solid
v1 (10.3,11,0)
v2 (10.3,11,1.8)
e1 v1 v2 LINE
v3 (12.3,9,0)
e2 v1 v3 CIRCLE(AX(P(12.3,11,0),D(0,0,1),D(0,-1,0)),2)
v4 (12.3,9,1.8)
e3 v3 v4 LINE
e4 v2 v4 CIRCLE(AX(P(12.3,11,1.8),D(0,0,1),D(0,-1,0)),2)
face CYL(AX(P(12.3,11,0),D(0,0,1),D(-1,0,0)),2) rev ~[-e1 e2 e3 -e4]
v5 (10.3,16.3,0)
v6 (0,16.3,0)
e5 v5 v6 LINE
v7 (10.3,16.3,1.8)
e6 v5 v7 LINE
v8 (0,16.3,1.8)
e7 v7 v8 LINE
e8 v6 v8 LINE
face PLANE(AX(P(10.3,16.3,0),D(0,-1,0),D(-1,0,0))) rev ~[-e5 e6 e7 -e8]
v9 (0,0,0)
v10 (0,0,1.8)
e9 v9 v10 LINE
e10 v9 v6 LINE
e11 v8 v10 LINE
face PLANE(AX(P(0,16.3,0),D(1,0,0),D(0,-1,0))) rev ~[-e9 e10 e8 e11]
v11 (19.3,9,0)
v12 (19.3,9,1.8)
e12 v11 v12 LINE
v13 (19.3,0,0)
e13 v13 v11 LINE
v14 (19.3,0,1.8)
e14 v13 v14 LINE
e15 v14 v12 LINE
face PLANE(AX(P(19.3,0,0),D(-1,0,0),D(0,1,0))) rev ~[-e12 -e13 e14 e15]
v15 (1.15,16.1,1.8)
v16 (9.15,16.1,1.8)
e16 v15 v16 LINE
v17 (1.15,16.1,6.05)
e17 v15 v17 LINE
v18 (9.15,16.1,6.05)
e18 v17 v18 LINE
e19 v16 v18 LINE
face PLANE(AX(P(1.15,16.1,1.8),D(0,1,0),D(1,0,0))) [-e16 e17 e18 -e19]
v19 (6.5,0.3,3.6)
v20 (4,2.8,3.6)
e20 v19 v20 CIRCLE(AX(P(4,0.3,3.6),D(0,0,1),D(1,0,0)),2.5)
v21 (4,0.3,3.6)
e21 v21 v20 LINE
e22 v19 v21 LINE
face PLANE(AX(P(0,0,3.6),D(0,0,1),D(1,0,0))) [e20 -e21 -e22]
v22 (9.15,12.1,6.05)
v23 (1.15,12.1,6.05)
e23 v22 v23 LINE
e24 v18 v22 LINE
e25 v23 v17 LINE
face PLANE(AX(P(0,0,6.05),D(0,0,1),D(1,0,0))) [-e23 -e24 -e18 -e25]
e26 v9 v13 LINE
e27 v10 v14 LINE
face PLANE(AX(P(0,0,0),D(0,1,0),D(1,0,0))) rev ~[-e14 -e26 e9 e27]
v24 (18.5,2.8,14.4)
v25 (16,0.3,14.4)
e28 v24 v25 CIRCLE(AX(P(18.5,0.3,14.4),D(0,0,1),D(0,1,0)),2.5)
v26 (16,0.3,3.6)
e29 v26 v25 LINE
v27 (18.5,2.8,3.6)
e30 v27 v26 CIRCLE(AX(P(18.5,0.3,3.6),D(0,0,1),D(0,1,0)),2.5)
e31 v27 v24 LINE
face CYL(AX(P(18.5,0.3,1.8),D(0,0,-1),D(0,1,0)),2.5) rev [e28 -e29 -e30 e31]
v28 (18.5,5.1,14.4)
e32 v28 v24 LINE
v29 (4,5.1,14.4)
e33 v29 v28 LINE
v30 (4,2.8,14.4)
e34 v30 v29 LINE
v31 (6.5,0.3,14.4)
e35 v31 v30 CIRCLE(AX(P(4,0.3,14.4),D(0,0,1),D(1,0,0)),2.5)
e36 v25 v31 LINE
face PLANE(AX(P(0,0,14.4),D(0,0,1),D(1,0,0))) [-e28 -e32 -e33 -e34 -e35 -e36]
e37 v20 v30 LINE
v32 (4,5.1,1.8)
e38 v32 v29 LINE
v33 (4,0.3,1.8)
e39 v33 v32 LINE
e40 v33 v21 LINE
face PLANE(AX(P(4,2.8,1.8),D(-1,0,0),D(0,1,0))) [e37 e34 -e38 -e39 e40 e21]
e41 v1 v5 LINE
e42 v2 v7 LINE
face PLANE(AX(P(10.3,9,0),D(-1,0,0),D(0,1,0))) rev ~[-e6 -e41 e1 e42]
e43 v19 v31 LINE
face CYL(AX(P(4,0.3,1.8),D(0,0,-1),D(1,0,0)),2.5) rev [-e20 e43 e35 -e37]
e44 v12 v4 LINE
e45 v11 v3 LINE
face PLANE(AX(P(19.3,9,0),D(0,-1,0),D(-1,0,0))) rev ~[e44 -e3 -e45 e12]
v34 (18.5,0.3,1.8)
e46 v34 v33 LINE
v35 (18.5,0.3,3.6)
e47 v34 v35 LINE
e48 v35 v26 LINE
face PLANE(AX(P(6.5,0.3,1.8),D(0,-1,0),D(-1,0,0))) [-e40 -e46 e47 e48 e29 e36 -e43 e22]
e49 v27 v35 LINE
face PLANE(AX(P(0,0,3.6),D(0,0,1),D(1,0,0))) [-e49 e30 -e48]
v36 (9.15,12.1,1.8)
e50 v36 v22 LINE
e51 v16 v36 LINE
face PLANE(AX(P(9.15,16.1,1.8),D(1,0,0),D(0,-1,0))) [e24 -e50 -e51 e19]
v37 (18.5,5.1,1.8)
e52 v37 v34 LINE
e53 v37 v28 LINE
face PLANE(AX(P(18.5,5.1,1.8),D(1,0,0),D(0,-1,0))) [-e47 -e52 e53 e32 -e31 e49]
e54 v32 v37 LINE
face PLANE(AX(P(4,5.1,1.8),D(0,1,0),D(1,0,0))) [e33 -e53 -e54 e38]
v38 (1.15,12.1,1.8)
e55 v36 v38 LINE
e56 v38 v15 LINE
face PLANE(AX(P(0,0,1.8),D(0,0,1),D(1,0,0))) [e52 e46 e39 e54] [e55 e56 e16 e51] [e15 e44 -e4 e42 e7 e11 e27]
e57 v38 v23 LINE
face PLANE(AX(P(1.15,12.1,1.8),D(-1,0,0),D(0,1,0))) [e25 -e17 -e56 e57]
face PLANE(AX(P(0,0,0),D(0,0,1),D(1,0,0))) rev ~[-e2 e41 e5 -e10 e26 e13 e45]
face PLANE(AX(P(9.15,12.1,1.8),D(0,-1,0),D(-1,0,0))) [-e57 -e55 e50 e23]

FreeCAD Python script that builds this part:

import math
import FreeCAD as App
import Part
import Sketcher

V = App.Vector


def edges_at(feature, points):
    """Names of the edges that pass closest to the given points."""
    edges = feature.Shape.Edges
    near = lambda p: min(range(len(edges)), key=lambda i: edges[i].distToShape(Part.Vertex(*p))[0])
    return sorted({f"Edge{near(p) + 1}" for p in points})

doc = App.newDocument("Part")
body = doc.addObject("PartDesign::Body", "Body")

sketch1 = body.newObject("Sketcher::SketchObject", "Sketch")
sketch1.AttachmentSupport = (doc.getObject("XY_Plane"), [""])
sketch1.MapMode = "FlatFace"
sketch1.addGeometry([
    Part.LineSegment(V(0, 16, 0), V(0, 0, 0)),
    Part.LineSegment(V(0, 0, 0), V(19, 0, 0)),
    Part.LineSegment(V(19, 0, 0), V(19, 9, 0)),
    Part.LineSegment(V(19, 9, 0), V(10, 9, 0)),
    Part.LineSegment(V(10, 9, 0), V(10, 16, 0)),
    Part.LineSegment(V(10, 16, 0), V(0, 16, 0)),
], False)
sketch1.addConstraint([
    Sketcher.Constraint("Coincident", 0, 2, 1, 1),
    Sketcher.Constraint("Coincident", 1, 2, 2, 1),
    Sketcher.Constraint("Coincident", 2, 2, 3, 1),
    Sketcher.Constraint("Coincident", 3, 2, 4, 1),
    Sketcher.Constraint("Coincident", 4, 2, 5, 1),
    Sketcher.Constraint("Coincident", 5, 2, 0, 1),
    Sketcher.Constraint("Vertical", 0),
    Sketcher.Constraint("Horizontal", 1),
    Sketcher.Constraint("Vertical", 2),
    Sketcher.Constraint("Horizontal", 3),
    Sketcher.Constraint("Vertical", 4),
    Sketcher.Constraint("Horizontal", 5),
    Sketcher.Constraint("Coincident", 0, 2, -1, 1),
    Sketcher.Constraint("Equal", 3, 2),
    Sketcher.Constraint("DistanceX", 3, 2, 3, 1, 9.0),
    Sketcher.Constraint("DistanceX", 1, 1, 1, 2, 19.3),
    Sketcher.Constraint("DistanceY", 0, 2, 0, 1, 16.3),
])
pad1 = body.newObject("PartDesign::Pad", "Pad")
pad1.Profile = sketch1
pad1.Length = 1.8
doc.recompute()

fillet = body.newObject("PartDesign::Fillet", "Fillet")
fillet.Base = (pad1, edges_at(pad1, [(10.3, 9, 0.9)]))
fillet.Radius = 2

sketch2 = body.newObject("Sketcher::SketchObject", "Sketch001")
sketch2.AttachmentSupport = (doc.getObject("XY_Plane"), [""])
sketch2.MapMode = "FlatFace"
sketch2.AttachmentOffset = App.Placement(V(0, 0, 1.8), App.Rotation())
sketch2.addGeometry([
    Part.LineSegment(V(6.5, 0.3, 0), V(16, 0.3, 0)),
    Part.ArcOfCircle(Part.Circle(V(18.5, 0.3, 0), V(0, 0, 1), 2.5), math.radians(90), math.radians(180)),
    Part.LineSegment(V(18.5, 2.8, 0), V(18.5, 5.1, 0)),
    Part.LineSegment(V(18.5, 5.1, 0), V(4, 5.1, 0)),
    Part.LineSegment(V(4, 5.1, 0), V(4, 2.8, 0)),
    Part.ArcOfCircle(Part.Circle(V(4, 0.3, 0), V(0, 0, 1), 2.5), math.radians(0), math.radians(90)),
], False)
sketch2.addConstraint([
    Sketcher.Constraint("Coincident", 0, 2, 1, 2),
    Sketcher.Constraint("Coincident", 1, 1, 2, 1),
    Sketcher.Constraint("Coincident", 2, 2, 3, 1),
    Sketcher.Constraint("Coincident", 3, 2, 4, 1),
    Sketcher.Constraint("Coincident", 4, 2, 5, 2),
    Sketcher.Constraint("Coincident", 5, 1, 0, 1),
    Sketcher.Constraint("Horizontal", 0),
    Sketcher.Constraint("Vertical", 2),
    Sketcher.Constraint("Horizontal", 3),
    Sketcher.Constraint("Vertical", 4),
    Sketcher.Constraint("Equal", 1, 5),
    Sketcher.Constraint("Horizontal", 1, 3, 5, 3),
    Sketcher.Constraint("Horizontal", 5, 3, 0, 2),
    Sketcher.Constraint("Vertical", 5, 3, 3, 2),
    Sketcher.Constraint("Radius", 1, 2.5),
    Sketcher.Constraint("DistanceX", 3, 2, 3, 1, 14.5),
    Sketcher.Constraint("DistanceY", 2, 1, 2, 2, 2.3),
    Sketcher.Constraint("DistanceY", -1, 1, 1, 3, 0.3),
    Sketcher.Constraint("DistanceX", 5, 3, 1, 3, 14.5),
    Sketcher.Constraint("DistanceX", -1, 1, 5, 3, 4.0),
])
pad2 = body.newObject("PartDesign::Pad", "Pad001")
pad2.Profile = sketch2
pad2.Length = 12.6

sketch3 = body.newObject("Sketcher::SketchObject", "Sketch002")
sketch3.AttachmentSupport = (doc.getObject("XY_Plane"), [""])
sketch3.MapMode = "FlatFace"
sketch3.AttachmentOffset = App.Placement(V(0, 0, 1.8), App.Rotation())
sketch3.addGeometry([
    Part.LineSegment(V(16, 0.3, 0), V(18.5, 0.3, 0)),
    Part.LineSegment(V(18.5, 0.3, 0), V(18.5, 2.8, 0)),
    Part.ArcOfCircle(Part.Circle(V(18.5, 0.3, 0), V(0, 0, 1), 2.5), math.radians(90), math.radians(180)),
    Part.LineSegment(V(4, 0.3, 0), V(6.5, 0.3, 0)),
    Part.ArcOfCircle(Part.Circle(V(4, 0.3, 0), V(0, 0, 1), 2.5), math.radians(0), math.radians(90)),
    Part.LineSegment(V(4, 2.8, 0), V(4, 0.3, 0)),
], False)
sketch3.addConstraint([
    Sketcher.Constraint("Coincident", 0, 2, 1, 1),
    Sketcher.Constraint("Coincident", 1, 2, 2, 1),
    Sketcher.Constraint("Coincident", 2, 2, 0, 1),
    Sketcher.Constraint("Coincident", 3, 2, 4, 1),
    Sketcher.Constraint("Coincident", 4, 2, 5, 1),
    Sketcher.Constraint("Coincident", 5, 2, 3, 1),
    Sketcher.Constraint("Horizontal", 0),
    Sketcher.Constraint("Vertical", 1),
    Sketcher.Constraint("Horizontal", 3),
    Sketcher.Constraint("Vertical", 5),
    Sketcher.Constraint("Coincident", 0, 2, 2, 3),
    Sketcher.Constraint("Coincident", 5, 2, 4, 3),
    Sketcher.Constraint("Equal", 2, 4),
    Sketcher.Constraint("Horizontal", 2, 3, 4, 3),
    Sketcher.Constraint("Radius", 2, 2.5),
    Sketcher.Constraint("DistanceY", -1, 1, 2, 3, 0.3),
    Sketcher.Constraint("DistanceX", 4, 3, 2, 3, 14.5),
    Sketcher.Constraint("DistanceX", -1, 1, 4, 3, 4.0),
])
pad3 = body.newObject("PartDesign::Pad", "Pad002")
pad3.Profile = sketch3
pad3.Length = 1.8

sketch4 = body.newObject("Sketcher::SketchObject", "Sketch003")
sketch4.AttachmentSupport = (doc.getObject("XY_Plane"), [""])
sketch4.MapMode = "FlatFace"
sketch4.AttachmentOffset = App.Placement(V(0, 0, 1.8), App.Rotation())
sketch4.addGeometry([
    Part.LineSegment(V(9.2, 16.1, 0), V(1.1, 16.1, 0)),
    Part.LineSegment(V(1.1, 16.1, 0), V(1.1, 12.1, 0)),
    Part.LineSegment(V(1.1, 12.1, 0), V(9.2, 12.1, 0)),
    Part.LineSegment(V(9.2, 12.1, 0), V(9.2, 16.1, 0)),
], False)
sketch4.addConstraint([
    Sketcher.Constraint("Coincident", 0, 2, 1, 1),
    Sketcher.Constraint("Coincident", 1, 2, 2, 1),
    Sketcher.Constraint("Coincident", 2, 2, 3, 1),
    Sketcher.Constraint("Coincident", 3, 2, 0, 1),
    Sketcher.Constraint("Horizontal", 0),
    Sketcher.Constraint("Vertical", 1),
    Sketcher.Constraint("Horizontal", 2),
    Sketcher.Constraint("Vertical", 3),
    Sketcher.Constraint("DistanceX", 0, 2, 0, 1, 8.0),
    Sketcher.Constraint("DistanceY", 1, 2, 1, 1, 4.0),
    Sketcher.Constraint("DistanceY", -1, 1, 0, 2, 16.1),
    Sketcher.Constraint("DistanceX", -1, 1, 0, 2, 1.15),
])
pad4 = body.newObject("PartDesign::Pad", "Pad003")
pad4.Profile = sketch4
pad4.Length = 4.25

doc.recompute()
